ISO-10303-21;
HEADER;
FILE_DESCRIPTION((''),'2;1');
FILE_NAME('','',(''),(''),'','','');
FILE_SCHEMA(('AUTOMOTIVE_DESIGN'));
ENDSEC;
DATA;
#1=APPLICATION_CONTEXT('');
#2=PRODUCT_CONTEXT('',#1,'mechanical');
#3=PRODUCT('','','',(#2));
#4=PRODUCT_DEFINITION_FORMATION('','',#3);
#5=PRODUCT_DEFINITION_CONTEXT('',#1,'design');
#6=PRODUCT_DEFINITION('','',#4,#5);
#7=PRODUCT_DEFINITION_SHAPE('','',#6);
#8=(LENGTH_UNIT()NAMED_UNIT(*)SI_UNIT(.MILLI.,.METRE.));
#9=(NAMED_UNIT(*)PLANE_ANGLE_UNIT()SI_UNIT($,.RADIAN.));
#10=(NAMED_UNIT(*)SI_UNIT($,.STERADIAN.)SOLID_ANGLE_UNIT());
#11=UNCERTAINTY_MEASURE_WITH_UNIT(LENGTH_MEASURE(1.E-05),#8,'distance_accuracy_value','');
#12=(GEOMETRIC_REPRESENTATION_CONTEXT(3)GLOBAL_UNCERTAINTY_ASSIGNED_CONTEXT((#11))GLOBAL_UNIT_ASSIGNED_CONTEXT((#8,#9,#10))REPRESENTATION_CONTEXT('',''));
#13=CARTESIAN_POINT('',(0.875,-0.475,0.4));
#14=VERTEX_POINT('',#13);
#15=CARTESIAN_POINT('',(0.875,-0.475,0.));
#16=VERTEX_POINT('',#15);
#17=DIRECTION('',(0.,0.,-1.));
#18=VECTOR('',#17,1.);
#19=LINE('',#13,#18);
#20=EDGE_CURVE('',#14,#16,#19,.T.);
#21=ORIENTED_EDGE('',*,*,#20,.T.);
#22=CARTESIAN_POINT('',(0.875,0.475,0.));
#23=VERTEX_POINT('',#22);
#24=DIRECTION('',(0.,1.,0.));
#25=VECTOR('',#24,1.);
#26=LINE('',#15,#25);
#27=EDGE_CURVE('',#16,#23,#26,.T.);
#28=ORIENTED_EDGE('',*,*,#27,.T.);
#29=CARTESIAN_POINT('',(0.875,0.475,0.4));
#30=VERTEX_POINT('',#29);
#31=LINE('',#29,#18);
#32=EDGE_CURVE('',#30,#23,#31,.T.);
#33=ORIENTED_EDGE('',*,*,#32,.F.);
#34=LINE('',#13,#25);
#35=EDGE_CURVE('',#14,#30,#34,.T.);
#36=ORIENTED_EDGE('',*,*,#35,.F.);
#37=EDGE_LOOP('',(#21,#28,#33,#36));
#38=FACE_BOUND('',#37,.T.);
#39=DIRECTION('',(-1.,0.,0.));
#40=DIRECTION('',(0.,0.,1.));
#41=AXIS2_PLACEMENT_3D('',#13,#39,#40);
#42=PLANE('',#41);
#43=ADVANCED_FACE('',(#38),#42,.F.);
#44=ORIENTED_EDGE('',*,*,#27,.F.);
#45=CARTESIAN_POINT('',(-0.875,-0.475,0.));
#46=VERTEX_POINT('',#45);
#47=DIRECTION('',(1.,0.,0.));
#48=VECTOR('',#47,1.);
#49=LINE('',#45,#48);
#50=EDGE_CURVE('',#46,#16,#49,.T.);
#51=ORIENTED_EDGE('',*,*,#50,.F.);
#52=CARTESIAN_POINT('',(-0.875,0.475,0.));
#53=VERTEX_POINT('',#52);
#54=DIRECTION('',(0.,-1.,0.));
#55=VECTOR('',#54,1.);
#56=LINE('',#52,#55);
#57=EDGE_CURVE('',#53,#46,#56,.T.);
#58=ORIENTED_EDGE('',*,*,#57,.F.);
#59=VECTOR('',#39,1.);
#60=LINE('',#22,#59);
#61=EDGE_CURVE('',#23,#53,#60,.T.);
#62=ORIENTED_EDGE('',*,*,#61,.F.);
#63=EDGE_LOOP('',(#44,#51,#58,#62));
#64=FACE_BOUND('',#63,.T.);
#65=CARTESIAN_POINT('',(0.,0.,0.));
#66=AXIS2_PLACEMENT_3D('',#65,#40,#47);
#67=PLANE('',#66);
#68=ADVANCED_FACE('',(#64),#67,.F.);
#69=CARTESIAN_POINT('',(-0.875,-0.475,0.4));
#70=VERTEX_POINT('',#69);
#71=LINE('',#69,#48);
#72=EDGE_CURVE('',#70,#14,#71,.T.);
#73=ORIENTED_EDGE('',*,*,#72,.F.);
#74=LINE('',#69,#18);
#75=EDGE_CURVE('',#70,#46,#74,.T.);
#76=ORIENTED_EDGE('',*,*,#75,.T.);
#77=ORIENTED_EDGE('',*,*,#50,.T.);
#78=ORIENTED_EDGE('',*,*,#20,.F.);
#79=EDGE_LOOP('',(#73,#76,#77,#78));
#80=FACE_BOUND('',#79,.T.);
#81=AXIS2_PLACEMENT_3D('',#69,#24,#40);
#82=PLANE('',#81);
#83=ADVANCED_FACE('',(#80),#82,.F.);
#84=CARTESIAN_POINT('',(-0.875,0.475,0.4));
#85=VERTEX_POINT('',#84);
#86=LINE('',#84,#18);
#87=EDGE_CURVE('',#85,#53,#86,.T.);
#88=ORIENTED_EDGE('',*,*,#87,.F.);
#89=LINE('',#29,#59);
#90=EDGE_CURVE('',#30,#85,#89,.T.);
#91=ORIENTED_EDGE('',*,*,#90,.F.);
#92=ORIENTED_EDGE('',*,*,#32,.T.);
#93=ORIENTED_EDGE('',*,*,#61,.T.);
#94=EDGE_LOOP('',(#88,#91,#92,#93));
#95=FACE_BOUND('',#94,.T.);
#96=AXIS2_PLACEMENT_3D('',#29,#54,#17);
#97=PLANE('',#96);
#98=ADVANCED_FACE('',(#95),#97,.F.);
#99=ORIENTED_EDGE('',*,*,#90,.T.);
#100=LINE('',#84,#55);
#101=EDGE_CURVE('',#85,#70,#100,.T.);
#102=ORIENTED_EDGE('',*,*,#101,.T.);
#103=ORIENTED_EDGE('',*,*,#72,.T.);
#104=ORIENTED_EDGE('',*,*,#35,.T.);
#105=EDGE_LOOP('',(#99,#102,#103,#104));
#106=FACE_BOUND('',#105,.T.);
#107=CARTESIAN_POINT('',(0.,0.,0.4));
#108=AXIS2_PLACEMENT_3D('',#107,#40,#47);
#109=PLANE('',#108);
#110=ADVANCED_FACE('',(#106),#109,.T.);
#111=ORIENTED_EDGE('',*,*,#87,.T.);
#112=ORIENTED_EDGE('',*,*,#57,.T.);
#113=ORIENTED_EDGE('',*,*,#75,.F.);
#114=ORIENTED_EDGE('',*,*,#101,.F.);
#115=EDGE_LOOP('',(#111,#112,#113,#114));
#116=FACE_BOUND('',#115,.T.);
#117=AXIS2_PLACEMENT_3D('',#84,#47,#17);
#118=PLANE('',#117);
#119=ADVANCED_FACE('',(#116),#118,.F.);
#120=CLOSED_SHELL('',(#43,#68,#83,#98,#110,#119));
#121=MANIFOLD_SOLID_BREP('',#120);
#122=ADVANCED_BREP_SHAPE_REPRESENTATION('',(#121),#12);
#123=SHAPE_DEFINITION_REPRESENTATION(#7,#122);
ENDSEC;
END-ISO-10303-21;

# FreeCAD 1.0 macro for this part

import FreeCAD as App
import Part
import Sketcher
from FreeCAD import Vector


def add_polygon(sketch, points):
    """Adds a closed chain of lines whose ends are joined by coincident constraints."""
    first, n = sketch.GeometryCount, len(points)
    for a, b in zip(points, points[1:] + points[:1]):
        sketch.addGeometry(Part.LineSegment(App.Vector(*a, 0), App.Vector(*b, 0)), False)
    for i in range(n):
        sketch.addConstraint(Sketcher.Constraint("Coincident", first + i, 2, first + (i + 1) % n, 1))

doc = App.newDocument("Part")
body = doc.addObject("PartDesign::Body", "Body")

# Sketch on XY plane
sketch1 = body.newObject("Sketcher::SketchObject", "Sketch")
sketch1.AttachmentSupport = (doc.getObject("XY_Plane"), [""])
sketch1.MapMode = "FlatFace"
add_polygon(sketch1, [(-0.9, 0.5), (-0.9, -0.5), (0.9, -0.5), (0.9, 0.5)])  # lines 0-3
sketch1.addConstraint([
    Sketcher.Constraint("Vertical", 0),
    Sketcher.Constraint("Horizontal", 1),
    Sketcher.Constraint("Vertical", 2),
    Sketcher.Constraint("Horizontal", 3),
    Sketcher.Constraint("Symmetric", 0, 2, 2, 2, -1, 1),
    Sketcher.Constraint("DistanceX", 1, 1, 1, 2, 1.75),
    Sketcher.Constraint("DistanceY", 0, 2, 0, 1, 0.95),
])
pad1 = body.newObject("PartDesign::Pad", "Pad")
pad1.Profile = sketch1
pad1.Length = 0.4

doc.recompute()
